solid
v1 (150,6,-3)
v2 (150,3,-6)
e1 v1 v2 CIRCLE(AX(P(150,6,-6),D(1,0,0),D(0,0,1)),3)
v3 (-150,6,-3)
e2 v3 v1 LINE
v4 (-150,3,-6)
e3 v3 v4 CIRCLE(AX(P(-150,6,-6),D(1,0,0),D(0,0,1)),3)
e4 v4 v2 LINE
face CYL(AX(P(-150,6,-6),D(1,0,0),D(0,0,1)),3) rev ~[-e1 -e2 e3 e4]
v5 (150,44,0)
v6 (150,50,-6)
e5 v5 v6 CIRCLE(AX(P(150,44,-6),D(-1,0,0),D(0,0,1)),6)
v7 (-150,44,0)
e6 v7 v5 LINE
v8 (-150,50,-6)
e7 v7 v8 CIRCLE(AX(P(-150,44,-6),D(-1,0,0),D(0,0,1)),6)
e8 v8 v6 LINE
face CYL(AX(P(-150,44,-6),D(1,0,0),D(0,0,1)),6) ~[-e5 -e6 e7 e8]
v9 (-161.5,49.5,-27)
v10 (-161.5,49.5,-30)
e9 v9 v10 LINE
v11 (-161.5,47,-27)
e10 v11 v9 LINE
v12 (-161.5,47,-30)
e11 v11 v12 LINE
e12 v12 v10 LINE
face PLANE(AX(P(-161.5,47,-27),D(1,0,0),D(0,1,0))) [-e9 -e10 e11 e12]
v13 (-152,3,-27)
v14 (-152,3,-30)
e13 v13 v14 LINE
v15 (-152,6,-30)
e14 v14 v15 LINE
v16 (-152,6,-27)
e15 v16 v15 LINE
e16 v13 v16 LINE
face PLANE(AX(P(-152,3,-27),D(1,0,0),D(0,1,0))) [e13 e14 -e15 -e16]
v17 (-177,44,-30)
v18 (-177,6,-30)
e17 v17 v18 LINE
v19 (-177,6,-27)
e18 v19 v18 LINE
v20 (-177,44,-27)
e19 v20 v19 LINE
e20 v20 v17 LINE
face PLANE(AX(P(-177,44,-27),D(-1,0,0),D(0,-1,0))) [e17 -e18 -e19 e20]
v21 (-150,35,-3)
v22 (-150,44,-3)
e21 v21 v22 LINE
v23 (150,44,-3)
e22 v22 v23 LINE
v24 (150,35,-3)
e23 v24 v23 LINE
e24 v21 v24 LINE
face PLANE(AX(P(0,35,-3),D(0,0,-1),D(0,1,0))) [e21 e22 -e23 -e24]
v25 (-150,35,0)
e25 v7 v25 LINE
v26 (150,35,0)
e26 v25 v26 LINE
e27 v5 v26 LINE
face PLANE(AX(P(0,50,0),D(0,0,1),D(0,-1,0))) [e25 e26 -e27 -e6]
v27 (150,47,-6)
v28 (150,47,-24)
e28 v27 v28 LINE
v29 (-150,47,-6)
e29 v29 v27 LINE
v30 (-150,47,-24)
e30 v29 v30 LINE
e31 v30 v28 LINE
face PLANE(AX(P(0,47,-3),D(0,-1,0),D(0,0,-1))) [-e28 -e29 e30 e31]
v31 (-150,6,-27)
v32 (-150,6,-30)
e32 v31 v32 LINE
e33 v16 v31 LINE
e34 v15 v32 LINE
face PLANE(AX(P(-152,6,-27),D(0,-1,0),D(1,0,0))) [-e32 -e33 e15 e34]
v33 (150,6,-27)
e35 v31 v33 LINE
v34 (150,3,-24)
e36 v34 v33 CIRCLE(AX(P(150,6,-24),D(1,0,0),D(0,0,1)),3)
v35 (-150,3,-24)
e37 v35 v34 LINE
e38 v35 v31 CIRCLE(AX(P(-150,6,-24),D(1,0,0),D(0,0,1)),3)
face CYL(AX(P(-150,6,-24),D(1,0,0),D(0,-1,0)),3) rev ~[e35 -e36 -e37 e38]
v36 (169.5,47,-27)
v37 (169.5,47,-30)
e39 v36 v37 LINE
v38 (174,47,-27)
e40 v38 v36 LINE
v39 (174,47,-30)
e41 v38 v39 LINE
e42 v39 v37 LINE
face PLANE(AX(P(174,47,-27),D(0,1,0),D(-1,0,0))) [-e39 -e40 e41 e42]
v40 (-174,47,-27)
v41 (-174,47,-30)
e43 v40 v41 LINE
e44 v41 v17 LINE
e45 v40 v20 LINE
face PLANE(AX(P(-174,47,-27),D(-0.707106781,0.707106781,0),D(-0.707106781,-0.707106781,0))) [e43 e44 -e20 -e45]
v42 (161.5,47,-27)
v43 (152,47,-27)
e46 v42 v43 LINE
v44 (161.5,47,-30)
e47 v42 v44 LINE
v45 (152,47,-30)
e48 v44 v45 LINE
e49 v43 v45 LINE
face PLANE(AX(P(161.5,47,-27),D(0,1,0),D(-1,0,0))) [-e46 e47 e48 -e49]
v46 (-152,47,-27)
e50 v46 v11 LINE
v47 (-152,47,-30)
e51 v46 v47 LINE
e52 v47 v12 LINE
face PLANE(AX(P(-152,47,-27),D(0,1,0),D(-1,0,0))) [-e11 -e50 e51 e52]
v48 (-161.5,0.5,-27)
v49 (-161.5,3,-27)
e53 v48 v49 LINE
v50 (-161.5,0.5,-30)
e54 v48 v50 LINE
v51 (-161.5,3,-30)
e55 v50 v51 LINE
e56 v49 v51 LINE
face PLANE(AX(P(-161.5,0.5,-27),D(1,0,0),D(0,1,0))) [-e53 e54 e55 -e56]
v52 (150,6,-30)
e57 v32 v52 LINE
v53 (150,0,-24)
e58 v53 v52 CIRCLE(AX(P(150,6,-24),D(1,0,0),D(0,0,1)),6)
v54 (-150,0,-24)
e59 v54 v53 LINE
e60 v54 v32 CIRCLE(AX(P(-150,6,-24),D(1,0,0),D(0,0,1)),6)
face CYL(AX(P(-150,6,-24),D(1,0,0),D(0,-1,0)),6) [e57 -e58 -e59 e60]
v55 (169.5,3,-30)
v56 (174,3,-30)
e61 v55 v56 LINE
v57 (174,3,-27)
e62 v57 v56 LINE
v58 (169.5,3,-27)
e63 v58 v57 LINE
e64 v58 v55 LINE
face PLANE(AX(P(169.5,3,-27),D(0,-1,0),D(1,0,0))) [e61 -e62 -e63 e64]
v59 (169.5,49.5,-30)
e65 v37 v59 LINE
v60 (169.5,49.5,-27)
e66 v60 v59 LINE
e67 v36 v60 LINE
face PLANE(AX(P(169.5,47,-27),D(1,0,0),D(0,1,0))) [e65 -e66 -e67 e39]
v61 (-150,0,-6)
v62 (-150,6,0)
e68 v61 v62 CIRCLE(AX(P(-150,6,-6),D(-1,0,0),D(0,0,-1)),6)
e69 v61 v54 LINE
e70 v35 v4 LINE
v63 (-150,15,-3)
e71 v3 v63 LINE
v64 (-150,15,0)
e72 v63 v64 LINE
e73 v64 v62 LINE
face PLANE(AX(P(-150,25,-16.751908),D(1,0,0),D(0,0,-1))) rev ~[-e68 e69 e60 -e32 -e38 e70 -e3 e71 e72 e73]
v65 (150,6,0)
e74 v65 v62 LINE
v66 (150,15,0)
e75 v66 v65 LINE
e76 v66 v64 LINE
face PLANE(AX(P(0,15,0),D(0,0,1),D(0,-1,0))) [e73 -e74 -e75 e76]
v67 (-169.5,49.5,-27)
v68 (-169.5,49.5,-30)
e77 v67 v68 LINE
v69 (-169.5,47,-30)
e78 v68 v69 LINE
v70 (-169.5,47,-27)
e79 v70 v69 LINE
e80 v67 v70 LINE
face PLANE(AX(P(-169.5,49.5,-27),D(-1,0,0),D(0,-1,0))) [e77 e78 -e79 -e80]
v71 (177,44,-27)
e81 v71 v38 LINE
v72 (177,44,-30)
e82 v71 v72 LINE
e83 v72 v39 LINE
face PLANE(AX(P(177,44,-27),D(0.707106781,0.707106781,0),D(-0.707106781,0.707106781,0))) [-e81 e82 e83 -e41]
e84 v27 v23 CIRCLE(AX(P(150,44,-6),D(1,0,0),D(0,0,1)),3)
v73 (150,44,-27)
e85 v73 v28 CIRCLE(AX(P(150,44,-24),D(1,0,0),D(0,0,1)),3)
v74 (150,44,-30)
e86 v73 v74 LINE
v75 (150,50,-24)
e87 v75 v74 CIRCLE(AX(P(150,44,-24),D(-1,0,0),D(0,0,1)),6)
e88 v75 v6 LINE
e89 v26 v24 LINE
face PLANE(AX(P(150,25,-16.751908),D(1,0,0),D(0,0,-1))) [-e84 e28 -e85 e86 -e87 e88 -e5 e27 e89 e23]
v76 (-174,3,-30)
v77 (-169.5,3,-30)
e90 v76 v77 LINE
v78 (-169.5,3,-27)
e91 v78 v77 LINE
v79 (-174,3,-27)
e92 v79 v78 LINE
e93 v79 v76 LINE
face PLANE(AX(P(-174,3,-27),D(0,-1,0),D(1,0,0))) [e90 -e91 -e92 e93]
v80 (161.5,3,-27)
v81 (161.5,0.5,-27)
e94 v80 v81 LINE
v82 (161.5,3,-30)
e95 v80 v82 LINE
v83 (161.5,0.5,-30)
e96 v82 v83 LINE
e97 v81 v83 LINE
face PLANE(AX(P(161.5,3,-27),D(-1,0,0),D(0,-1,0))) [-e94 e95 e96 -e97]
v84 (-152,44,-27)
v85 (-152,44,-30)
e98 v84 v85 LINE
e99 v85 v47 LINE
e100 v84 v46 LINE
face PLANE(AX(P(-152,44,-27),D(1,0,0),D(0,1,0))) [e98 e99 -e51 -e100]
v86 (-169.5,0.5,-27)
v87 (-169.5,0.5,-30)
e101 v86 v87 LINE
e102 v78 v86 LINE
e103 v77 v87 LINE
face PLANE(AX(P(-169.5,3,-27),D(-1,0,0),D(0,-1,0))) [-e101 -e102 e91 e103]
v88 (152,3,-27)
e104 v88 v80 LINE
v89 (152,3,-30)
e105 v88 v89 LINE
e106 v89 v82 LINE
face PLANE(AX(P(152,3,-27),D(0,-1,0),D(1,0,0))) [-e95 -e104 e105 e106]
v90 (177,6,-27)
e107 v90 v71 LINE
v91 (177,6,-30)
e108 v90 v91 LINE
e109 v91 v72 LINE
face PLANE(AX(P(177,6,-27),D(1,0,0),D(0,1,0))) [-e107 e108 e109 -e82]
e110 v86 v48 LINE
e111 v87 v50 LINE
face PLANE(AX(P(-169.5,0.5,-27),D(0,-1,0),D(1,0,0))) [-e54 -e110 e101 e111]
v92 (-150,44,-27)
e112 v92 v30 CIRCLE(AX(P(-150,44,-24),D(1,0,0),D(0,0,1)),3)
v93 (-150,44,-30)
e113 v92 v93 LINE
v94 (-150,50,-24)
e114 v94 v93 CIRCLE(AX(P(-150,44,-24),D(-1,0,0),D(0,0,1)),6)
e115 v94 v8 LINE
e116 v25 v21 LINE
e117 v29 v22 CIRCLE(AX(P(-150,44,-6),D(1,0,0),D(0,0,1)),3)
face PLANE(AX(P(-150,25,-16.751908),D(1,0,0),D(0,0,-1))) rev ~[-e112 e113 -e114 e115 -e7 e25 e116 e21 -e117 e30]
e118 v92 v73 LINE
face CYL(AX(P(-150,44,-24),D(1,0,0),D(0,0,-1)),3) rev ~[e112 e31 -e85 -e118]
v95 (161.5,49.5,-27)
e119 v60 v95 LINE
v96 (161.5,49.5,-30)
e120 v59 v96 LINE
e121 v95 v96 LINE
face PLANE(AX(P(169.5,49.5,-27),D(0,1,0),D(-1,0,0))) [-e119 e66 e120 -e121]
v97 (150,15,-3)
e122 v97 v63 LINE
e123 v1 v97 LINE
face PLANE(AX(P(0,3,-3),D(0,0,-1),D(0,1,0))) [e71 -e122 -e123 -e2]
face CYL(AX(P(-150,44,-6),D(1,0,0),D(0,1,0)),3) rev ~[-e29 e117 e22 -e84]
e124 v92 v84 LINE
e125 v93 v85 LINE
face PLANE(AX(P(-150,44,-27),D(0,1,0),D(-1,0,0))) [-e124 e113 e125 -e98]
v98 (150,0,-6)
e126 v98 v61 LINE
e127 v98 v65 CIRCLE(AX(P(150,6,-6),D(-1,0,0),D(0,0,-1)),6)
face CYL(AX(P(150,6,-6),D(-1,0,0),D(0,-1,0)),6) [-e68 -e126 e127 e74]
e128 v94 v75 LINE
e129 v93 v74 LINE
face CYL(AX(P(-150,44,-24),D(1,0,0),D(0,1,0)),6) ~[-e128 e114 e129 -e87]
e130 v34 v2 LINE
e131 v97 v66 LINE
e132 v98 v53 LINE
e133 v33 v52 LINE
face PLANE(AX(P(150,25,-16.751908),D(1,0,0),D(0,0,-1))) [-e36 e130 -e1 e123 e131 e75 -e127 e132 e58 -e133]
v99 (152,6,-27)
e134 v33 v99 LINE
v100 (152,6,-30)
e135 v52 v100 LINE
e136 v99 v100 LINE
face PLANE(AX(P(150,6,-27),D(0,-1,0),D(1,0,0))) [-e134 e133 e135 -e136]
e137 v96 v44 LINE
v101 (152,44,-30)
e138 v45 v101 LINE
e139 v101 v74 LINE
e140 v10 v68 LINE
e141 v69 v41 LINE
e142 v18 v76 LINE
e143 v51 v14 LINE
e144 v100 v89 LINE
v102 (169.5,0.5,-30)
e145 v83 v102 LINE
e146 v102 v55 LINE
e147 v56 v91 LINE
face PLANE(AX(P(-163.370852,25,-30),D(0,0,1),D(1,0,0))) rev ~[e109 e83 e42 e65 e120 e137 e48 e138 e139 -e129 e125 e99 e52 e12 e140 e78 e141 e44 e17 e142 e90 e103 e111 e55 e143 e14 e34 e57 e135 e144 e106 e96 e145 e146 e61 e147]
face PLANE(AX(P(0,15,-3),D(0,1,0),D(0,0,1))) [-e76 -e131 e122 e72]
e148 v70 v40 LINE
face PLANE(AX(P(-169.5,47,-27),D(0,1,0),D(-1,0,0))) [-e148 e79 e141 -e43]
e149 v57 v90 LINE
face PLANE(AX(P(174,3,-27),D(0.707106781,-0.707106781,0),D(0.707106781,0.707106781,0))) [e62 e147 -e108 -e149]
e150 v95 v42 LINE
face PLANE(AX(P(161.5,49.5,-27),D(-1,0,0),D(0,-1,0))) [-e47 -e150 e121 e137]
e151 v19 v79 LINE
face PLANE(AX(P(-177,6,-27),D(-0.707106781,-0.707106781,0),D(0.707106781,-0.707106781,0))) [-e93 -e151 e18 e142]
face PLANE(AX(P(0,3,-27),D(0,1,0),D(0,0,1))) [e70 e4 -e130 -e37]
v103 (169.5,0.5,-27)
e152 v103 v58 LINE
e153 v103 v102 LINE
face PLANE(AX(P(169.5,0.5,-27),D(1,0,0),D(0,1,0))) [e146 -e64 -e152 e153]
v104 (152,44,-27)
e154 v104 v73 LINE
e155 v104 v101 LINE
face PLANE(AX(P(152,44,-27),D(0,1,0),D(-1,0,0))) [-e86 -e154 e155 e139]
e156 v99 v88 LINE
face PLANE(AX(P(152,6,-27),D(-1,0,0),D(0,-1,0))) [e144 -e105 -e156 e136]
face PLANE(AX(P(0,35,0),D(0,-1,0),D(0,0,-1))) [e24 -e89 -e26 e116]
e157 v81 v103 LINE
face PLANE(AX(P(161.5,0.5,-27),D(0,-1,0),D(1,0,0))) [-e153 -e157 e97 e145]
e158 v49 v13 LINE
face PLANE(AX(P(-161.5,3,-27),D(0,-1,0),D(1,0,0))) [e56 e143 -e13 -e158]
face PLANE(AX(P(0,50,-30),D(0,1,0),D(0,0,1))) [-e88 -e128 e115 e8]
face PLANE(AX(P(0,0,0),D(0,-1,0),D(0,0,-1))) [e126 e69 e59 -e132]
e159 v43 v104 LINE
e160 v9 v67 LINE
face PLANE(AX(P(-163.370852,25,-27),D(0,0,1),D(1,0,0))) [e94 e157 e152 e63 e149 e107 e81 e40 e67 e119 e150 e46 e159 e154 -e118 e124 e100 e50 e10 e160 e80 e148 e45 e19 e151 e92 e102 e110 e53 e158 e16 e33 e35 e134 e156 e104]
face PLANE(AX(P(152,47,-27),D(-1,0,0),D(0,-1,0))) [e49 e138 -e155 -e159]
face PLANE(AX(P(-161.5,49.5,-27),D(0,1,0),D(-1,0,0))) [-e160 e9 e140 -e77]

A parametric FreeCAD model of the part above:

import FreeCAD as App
import Part
import Sketcher

V = App.Vector
Q = App.Units.Quantity


def edges_at(feature, points):
    """Names of the edges that pass closest to the given points."""
    edges = feature.Shape.Edges
    near = lambda p: min(range(len(edges)), key=lambda i: edges[i].distToShape(Part.Vertex(*p))[0])
    return sorted({f"Edge{near(p) + 1}" for p in points})

doc = App.newDocument("Part")
body = doc.addObject("PartDesign::Body", "Body")

sketch1 = body.newObject("Sketcher::SketchObject", "Sketch")
sketch1.AttachmentSupport = (doc.getObject("YZ_Plane"), [""])
sketch1.MapMode = "FlatFace"
sketch1.addGeometry([
    Part.LineSegment(V(0, 0, 0), V(0, -30, 0)),
    Part.LineSegment(V(0, -30, 0), V(50, -30, 0)),
    Part.LineSegment(V(50, -30, 0), V(50, 0, 0)),
    Part.LineSegment(V(50, 0, 0), V(35, 0, 0)),
    Part.LineSegment(V(35, 0, 0), V(35, -3, 0)),
    Part.LineSegment(V(35, -3, 0), V(47, -3, 0)),
    Part.LineSegment(V(47, -3, 0), V(47, -27, 0)),
    Part.LineSegment(V(47, -27, 0), V(3, -27, 0)),
    Part.LineSegment(V(3, -27, 0), V(3, -3, 0)),
    Part.LineSegment(V(3, -3, 0), V(15, -3, 0)),
    Part.LineSegment(V(15, -3, 0), V(15, 0, 0)),
    Part.LineSegment(V(15, 0, 0), V(0, 0, 0)),
], False)
sketch1.addConstraint([
    Sketcher.Constraint("Coincident", 0, 2, 1, 1),
    Sketcher.Constraint("Coincident", 1, 2, 2, 1),
    Sketcher.Constraint("Coincident", 2, 2, 3, 1),
    Sketcher.Constraint("Coincident", 3, 2, 4, 1),
    Sketcher.Constraint("Coincident", 4, 2, 5, 1),
    Sketcher.Constraint("Coincident", 5, 2, 6, 1),
    Sketcher.Constraint("Coincident", 6, 2, 7, 1),
    Sketcher.Constraint("Coincident", 7, 2, 8, 1),
    Sketcher.Constraint("Coincident", 8, 2, 9, 1),
    Sketcher.Constraint("Coincident", 9, 2, 10, 1),
    Sketcher.Constraint("Coincident", 10, 2, 11, 1),
    Sketcher.Constraint("Coincident", 11, 2, 0, 1),
    Sketcher.Constraint("Vertical", 0),
    Sketcher.Constraint("Horizontal", 1),
    Sketcher.Constraint("Vertical", 2),
    Sketcher.Constraint("Horizontal", 3),
    Sketcher.Constraint("Vertical", 4),
    Sketcher.Constraint("Horizontal", 5),
    Sketcher.Constraint("Vertical", 6),
    Sketcher.Constraint("Horizontal", 7),
    Sketcher.Constraint("Vertical", 8),
    Sketcher.Constraint("Horizontal", 9),
    Sketcher.Constraint("Vertical", 10),
    Sketcher.Constraint("Horizontal", 11),
    Sketcher.Constraint("Coincident", 11, 2, -1, 1),
    Sketcher.Constraint("PointOnObject", 2, 2, -1),
    Sketcher.Constraint("Horizontal", 5, 2, 8, 2),
    Sketcher.Constraint("Equal", 5, 9),
    Sketcher.Constraint("Equal", 3, 11),
    Sketcher.Constraint("DistanceX", 1, 1, 1, 2, Q("50 mm")),
    Sketcher.Constraint("DistanceX", 3, 2, 3, 1, Q("15 mm")),
    Sketcher.Constraint("DistanceX", 5, 1, 5, 2, Q("12 mm")),
    Sketcher.Constraint("DistanceY", 0, 2, 0, 1, Q("30 mm")),
    Sketcher.Constraint("DistanceY", 4, 2, 4, 1, Q("3 mm")),
    Sketcher.Constraint("DistanceY", 6, 2, 6, 1, Q("24 mm")),
])
pad1 = body.newObject("PartDesign::Pad", "Pad")
pad1.Profile = sketch1
pad1.Length = 300
pad1.Midplane = True
doc.recompute()

fillet = body.newObject("PartDesign::Fillet", "Fillet")
fillet.Base = (pad1, edges_at(pad1, [
    (0, 50, 0),
    (0, 50, -30),
    (0, 0, -30),
    (0, 0, 0),
]))
fillet.Radius = 6
doc.recompute()

fillet2 = body.newObject("PartDesign::Fillet", "Fillet001")
fillet2.Base = (fillet, edges_at(fillet, [
    (0, 3, -3),
    (0, 3, -27),
    (0, 47, -27),
    (0, 47, -3),
]))
fillet2.Radius = 3

sketch2 = body.newObject("Sketcher::SketchObject", "Sketch001")
sketch2.AttachmentSupport = (doc.getObject("XY_Plane"), [""])
sketch2.MapMode = "FlatFace"
sketch2.AttachmentOffset = App.Placement(V(0, 0, -27), App.Rotation())
sketch2.addGeometry([
    Part.LineSegment(V(-150, 44, 0), V(-152, 44, 0)),
    Part.LineSegment(V(-152, 44, 0), V(-152, 47, 0)),
    Part.LineSegment(V(-152, 47, 0), V(-161.5, 47, 0)),
    Part.LineSegment(V(-161.5, 47, 0), V(-161.5, 49.5, 0)),
    Part.LineSegment(V(-161.5, 49.5, 0), V(-169.5, 49.5, 0)),
    Part.LineSegment(V(-169.5, 49.5, 0), V(-169.5, 47, 0)),
    Part.LineSegment(V(-169.5, 47, 0), V(-174, 47, 0)),
    Part.LineSegment(V(-174, 47, 0), V(-177, 44, 0)),
    Part.LineSegment(V(-177, 44, 0), V(-177, 6, 0)),
    Part.LineSegment(V(-177, 6, 0), V(-174, 3, 0)),
    Part.LineSegment(V(-174, 3, 0), V(-169.5, 3, 0)),
    Part.LineSegment(V(-169.5, 3, 0), V(-169.5, 0.5, 0)),
    Part.LineSegment(V(-169.5, 0.5, 0), V(-161.5, 0.5, 0)),
    Part.LineSegment(V(-161.5, 0.5, 0), V(-161.5, 3, 0)),
    Part.LineSegment(V(-161.5, 3, 0), V(-152, 3, 0)),
    Part.LineSegment(V(-152, 3, 0), V(-152, 6, 0)),
    Part.LineSegment(V(-152, 6, 0), V(-150, 6, 0)),
    Part.LineSegment(V(-150, 6, 0), V(-150, 44, 0)),
    Part.LineSegment(V(174, 3, 0), V(177, 6, 0)),
    Part.LineSegment(V(177, 6, 0), V(177, 44, 0)),
    Part.LineSegment(V(177, 44, 0), V(174, 47, 0)),
    Part.LineSegment(V(174, 47, 0), V(169.5, 47, 0)),
    Part.LineSegment(V(169.5, 47, 0), V(169.5, 49.5, 0)),
    Part.LineSegment(V(169.5, 49.5, 0), V(161.5, 49.5, 0)),
    Part.LineSegment(V(161.5, 49.5, 0), V(161.5, 47, 0)),
    Part.LineSegment(V(161.5, 47, 0), V(152, 47, 0)),
    Part.LineSegment(V(152, 47, 0), V(152, 44, 0)),
    Part.LineSegment(V(152, 44, 0), V(150, 44, 0)),
    Part.LineSegment(V(150, 44, 0), V(150, 6, 0)),
    Part.LineSegment(V(150, 6, 0), V(152, 6, 0)),
    Part.LineSegment(V(152, 6, 0), V(152, 3, 0)),
    Part.LineSegment(V(152, 3, 0), V(161.5, 3, 0)),
    Part.LineSegment(V(161.5, 3, 0), V(161.5, 0.5, 0)),
    Part.LineSegment(V(161.5, 0.5, 0), V(169.5, 0.5, 0)),
    Part.LineSegment(V(169.5, 0.5, 0), V(169.5, 3, 0)),
    Part.LineSegment(V(169.5, 3, 0), V(174, 3, 0)),
], False)
sketch2.addConstraint([
    Sketcher.Constraint("Coincident", 0, 2, 1, 1),
    Sketcher.Constraint("Coincident", 1, 2, 2, 1),
    Sketcher.Constraint("Coincident", 2, 2, 3, 1),
    Sketcher.Constraint("Coincident", 3, 2, 4, 1),
    Sketcher.Constraint("Coincident", 4, 2, 5, 1),
    Sketcher.Constraint("Coincident", 5, 2, 6, 1),
    Sketcher.Constraint("Coincident", 6, 2, 7, 1),
    Sketcher.Constraint("Coincident", 7, 2, 8, 1),
    Sketcher.Constraint("Coincident", 8, 2, 9, 1),
    Sketcher.Constraint("Coincident", 9, 2, 10, 1),
    Sketcher.Constraint("Coincident", 10, 2, 11, 1),
    Sketcher.Constraint("Coincident", 11, 2, 12, 1),
    Sketcher.Constraint("Coincident", 12, 2, 13, 1),
    Sketcher.Constraint("Coincident", 13, 2, 14, 1),
    Sketcher.Constraint("Coincident", 14, 2, 15, 1),
    Sketcher.Constraint("Coincident", 15, 2, 16, 1),
    Sketcher.Constraint("Coincident", 16, 2, 17, 1),
    Sketcher.Constraint("Coincident", 17, 2, 0, 1),
    Sketcher.Constraint("Coincident", 18, 2, 19, 1),
    Sketcher.Constraint("Coincident", 19, 2, 20, 1),
    Sketcher.Constraint("Coincident", 20, 2, 21, 1),
    Sketcher.Constraint("Coincident", 21, 2, 22, 1),
    Sketcher.Constraint("Coincident", 22, 2, 23, 1),
    Sketcher.Constraint("Coincident", 23, 2, 24, 1),
    Sketcher.Constraint("Coincident", 24, 2, 25, 1),
    Sketcher.Constraint("Coincident", 25, 2, 26, 1),
    Sketcher.Constraint("Coincident", 26, 2, 27, 1),
    Sketcher.Constraint("Coincident", 27, 2, 28, 1),
    Sketcher.Constraint("Coincident", 28, 2, 29, 1),
    Sketcher.Constraint("Coincident", 29, 2, 30, 1),
    Sketcher.Constraint("Coincident", 30, 2, 31, 1),
    Sketcher.Constraint("Coincident", 31, 2, 32, 1),
    Sketcher.Constraint("Coincident", 32, 2, 33, 1),
    Sketcher.Constraint("Coincident", 33, 2, 34, 1),
    Sketcher.Constraint("Coincident", 34, 2, 35, 1),
    Sketcher.Constraint("Coincident", 35, 2, 18, 1),
    Sketcher.Constraint("Horizontal", 0),
    Sketcher.Constraint("Vertical", 1),
    Sketcher.Constraint("Horizontal", 2),
    Sketcher.Constraint("Vertical", 3),
    Sketcher.Constraint("Horizontal", 4),
    Sketcher.Constraint("Vertical", 5),
    Sketcher.Constraint("Horizontal", 6),
    Sketcher.Constraint("Vertical", 8),
    Sketcher.Constraint("Horizontal", 10),
    Sketcher.Constraint("Vertical", 11),
    Sketcher.Constraint("Horizontal", 12),
    Sketcher.Constraint("Vertical", 13),
    Sketcher.Constraint("Horizontal", 14),
    Sketcher.Constraint("Vertical", 15),
    Sketcher.Constraint("Horizontal", 16),
    Sketcher.Constraint("Vertical", 17),
    Sketcher.Constraint("Vertical", 19),
    Sketcher.Constraint("Horizontal", 21),
    Sketcher.Constraint("Vertical", 22),
    Sketcher.Constraint("Horizontal", 23),
    Sketcher.Constraint("Vertical", 24),
    Sketcher.Constraint("Horizontal", 25),
    Sketcher.Constraint("Vertical", 26),
    Sketcher.Constraint("Horizontal", 27),
    Sketcher.Constraint("Vertical", 28),
    Sketcher.Constraint("Horizontal", 29),
    Sketcher.Constraint("Vertical", 30),
    Sketcher.Constraint("Horizontal", 31),
    Sketcher.Constraint("Vertical", 32),
    Sketcher.Constraint("Horizontal", 33),
    Sketcher.Constraint("Vertical", 34),
    Sketcher.Constraint("Horizontal", 35),
    Sketcher.Constraint("Symmetric", 8, 2, 18, 2, -2),
    Sketcher.Constraint("Symmetric", 6, 2, 20, 2, -2),
    Sketcher.Constraint("Symmetric", 4, 2, 22, 2, -2),
    Sketcher.Constraint("Symmetric", 2, 2, 24, 2, -2),
    Sketcher.Constraint("Symmetric", 0, 2, 26, 2, -2),
    Sketcher.Constraint("Symmetric", 16, 2, 28, 2, -2),
    Sketcher.Constraint("Symmetric", 14, 2, 30, 2, -2),
    Sketcher.Constraint("Symmetric", 12, 2, 32, 2, -2),
    Sketcher.Constraint("Symmetric", 10, 2, 34, 2, -2),
    Sketcher.Constraint("Perpendicular", 7, 9),
    Sketcher.Constraint("Perpendicular", 9, 18),
    Sketcher.Constraint("Perpendicular", 18, 20),
    Sketcher.Constraint("Horizontal", 2, 2, 5, 2),
    Sketcher.Constraint("Horizontal", 0, 2, 7, 2),
    Sketcher.Constraint("Horizontal", 10, 2, 13, 2),
    Sketcher.Constraint("Horizontal", 8, 2, 15, 2),
    Sketcher.Constraint("Horizontal", 17, 2, 19, 2),
    Sketcher.Constraint("Vertical", 6, 2, 9, 2),
    Sketcher.Constraint("Vertical", 5, 2, 10, 2),
    Sketcher.Constraint("Vertical", 3, 2, 12, 2),
    Sketcher.Constraint("Vertical", 1, 2, 14, 2),
    Sketcher.Constraint("Equal", 5, 11),
    Sketcher.Constraint("DistanceX", 0, 2, 0, 1, Q("2 mm")),
    Sketcher.Constraint("DistanceX", 4, 2, 4, 1, Q("8 mm")),
    Sketcher.Constraint("DistanceY", 1, 1, 1, 2, Q("3 mm")),
    Sketcher.Constraint("DistanceY", 8, 2, 8, 1, Q("38 mm")),
    Sketcher.Constraint("DistanceX", 2, 2, 2, 1, Q("9.5 mm")),
    Sketcher.Constraint("DistanceX", 6, 2, 6, 1, Q("4.5 mm")),
    Sketcher.Constraint("DistanceY", 3, 1, 3, 2, Q("2.5 mm")),
    Sketcher.Constraint("DistanceX", 0, 2, -1, 1, Q("152 mm")),
    Sketcher.Constraint("DistanceY", -1, 1, 0, 2, Q("44 mm")),
])
pad2 = body.newObject("PartDesign::Pad", "Pad001")
pad2.Profile = sketch2
pad2.Length = 3
pad2.Reversed = True

doc.recompute()
